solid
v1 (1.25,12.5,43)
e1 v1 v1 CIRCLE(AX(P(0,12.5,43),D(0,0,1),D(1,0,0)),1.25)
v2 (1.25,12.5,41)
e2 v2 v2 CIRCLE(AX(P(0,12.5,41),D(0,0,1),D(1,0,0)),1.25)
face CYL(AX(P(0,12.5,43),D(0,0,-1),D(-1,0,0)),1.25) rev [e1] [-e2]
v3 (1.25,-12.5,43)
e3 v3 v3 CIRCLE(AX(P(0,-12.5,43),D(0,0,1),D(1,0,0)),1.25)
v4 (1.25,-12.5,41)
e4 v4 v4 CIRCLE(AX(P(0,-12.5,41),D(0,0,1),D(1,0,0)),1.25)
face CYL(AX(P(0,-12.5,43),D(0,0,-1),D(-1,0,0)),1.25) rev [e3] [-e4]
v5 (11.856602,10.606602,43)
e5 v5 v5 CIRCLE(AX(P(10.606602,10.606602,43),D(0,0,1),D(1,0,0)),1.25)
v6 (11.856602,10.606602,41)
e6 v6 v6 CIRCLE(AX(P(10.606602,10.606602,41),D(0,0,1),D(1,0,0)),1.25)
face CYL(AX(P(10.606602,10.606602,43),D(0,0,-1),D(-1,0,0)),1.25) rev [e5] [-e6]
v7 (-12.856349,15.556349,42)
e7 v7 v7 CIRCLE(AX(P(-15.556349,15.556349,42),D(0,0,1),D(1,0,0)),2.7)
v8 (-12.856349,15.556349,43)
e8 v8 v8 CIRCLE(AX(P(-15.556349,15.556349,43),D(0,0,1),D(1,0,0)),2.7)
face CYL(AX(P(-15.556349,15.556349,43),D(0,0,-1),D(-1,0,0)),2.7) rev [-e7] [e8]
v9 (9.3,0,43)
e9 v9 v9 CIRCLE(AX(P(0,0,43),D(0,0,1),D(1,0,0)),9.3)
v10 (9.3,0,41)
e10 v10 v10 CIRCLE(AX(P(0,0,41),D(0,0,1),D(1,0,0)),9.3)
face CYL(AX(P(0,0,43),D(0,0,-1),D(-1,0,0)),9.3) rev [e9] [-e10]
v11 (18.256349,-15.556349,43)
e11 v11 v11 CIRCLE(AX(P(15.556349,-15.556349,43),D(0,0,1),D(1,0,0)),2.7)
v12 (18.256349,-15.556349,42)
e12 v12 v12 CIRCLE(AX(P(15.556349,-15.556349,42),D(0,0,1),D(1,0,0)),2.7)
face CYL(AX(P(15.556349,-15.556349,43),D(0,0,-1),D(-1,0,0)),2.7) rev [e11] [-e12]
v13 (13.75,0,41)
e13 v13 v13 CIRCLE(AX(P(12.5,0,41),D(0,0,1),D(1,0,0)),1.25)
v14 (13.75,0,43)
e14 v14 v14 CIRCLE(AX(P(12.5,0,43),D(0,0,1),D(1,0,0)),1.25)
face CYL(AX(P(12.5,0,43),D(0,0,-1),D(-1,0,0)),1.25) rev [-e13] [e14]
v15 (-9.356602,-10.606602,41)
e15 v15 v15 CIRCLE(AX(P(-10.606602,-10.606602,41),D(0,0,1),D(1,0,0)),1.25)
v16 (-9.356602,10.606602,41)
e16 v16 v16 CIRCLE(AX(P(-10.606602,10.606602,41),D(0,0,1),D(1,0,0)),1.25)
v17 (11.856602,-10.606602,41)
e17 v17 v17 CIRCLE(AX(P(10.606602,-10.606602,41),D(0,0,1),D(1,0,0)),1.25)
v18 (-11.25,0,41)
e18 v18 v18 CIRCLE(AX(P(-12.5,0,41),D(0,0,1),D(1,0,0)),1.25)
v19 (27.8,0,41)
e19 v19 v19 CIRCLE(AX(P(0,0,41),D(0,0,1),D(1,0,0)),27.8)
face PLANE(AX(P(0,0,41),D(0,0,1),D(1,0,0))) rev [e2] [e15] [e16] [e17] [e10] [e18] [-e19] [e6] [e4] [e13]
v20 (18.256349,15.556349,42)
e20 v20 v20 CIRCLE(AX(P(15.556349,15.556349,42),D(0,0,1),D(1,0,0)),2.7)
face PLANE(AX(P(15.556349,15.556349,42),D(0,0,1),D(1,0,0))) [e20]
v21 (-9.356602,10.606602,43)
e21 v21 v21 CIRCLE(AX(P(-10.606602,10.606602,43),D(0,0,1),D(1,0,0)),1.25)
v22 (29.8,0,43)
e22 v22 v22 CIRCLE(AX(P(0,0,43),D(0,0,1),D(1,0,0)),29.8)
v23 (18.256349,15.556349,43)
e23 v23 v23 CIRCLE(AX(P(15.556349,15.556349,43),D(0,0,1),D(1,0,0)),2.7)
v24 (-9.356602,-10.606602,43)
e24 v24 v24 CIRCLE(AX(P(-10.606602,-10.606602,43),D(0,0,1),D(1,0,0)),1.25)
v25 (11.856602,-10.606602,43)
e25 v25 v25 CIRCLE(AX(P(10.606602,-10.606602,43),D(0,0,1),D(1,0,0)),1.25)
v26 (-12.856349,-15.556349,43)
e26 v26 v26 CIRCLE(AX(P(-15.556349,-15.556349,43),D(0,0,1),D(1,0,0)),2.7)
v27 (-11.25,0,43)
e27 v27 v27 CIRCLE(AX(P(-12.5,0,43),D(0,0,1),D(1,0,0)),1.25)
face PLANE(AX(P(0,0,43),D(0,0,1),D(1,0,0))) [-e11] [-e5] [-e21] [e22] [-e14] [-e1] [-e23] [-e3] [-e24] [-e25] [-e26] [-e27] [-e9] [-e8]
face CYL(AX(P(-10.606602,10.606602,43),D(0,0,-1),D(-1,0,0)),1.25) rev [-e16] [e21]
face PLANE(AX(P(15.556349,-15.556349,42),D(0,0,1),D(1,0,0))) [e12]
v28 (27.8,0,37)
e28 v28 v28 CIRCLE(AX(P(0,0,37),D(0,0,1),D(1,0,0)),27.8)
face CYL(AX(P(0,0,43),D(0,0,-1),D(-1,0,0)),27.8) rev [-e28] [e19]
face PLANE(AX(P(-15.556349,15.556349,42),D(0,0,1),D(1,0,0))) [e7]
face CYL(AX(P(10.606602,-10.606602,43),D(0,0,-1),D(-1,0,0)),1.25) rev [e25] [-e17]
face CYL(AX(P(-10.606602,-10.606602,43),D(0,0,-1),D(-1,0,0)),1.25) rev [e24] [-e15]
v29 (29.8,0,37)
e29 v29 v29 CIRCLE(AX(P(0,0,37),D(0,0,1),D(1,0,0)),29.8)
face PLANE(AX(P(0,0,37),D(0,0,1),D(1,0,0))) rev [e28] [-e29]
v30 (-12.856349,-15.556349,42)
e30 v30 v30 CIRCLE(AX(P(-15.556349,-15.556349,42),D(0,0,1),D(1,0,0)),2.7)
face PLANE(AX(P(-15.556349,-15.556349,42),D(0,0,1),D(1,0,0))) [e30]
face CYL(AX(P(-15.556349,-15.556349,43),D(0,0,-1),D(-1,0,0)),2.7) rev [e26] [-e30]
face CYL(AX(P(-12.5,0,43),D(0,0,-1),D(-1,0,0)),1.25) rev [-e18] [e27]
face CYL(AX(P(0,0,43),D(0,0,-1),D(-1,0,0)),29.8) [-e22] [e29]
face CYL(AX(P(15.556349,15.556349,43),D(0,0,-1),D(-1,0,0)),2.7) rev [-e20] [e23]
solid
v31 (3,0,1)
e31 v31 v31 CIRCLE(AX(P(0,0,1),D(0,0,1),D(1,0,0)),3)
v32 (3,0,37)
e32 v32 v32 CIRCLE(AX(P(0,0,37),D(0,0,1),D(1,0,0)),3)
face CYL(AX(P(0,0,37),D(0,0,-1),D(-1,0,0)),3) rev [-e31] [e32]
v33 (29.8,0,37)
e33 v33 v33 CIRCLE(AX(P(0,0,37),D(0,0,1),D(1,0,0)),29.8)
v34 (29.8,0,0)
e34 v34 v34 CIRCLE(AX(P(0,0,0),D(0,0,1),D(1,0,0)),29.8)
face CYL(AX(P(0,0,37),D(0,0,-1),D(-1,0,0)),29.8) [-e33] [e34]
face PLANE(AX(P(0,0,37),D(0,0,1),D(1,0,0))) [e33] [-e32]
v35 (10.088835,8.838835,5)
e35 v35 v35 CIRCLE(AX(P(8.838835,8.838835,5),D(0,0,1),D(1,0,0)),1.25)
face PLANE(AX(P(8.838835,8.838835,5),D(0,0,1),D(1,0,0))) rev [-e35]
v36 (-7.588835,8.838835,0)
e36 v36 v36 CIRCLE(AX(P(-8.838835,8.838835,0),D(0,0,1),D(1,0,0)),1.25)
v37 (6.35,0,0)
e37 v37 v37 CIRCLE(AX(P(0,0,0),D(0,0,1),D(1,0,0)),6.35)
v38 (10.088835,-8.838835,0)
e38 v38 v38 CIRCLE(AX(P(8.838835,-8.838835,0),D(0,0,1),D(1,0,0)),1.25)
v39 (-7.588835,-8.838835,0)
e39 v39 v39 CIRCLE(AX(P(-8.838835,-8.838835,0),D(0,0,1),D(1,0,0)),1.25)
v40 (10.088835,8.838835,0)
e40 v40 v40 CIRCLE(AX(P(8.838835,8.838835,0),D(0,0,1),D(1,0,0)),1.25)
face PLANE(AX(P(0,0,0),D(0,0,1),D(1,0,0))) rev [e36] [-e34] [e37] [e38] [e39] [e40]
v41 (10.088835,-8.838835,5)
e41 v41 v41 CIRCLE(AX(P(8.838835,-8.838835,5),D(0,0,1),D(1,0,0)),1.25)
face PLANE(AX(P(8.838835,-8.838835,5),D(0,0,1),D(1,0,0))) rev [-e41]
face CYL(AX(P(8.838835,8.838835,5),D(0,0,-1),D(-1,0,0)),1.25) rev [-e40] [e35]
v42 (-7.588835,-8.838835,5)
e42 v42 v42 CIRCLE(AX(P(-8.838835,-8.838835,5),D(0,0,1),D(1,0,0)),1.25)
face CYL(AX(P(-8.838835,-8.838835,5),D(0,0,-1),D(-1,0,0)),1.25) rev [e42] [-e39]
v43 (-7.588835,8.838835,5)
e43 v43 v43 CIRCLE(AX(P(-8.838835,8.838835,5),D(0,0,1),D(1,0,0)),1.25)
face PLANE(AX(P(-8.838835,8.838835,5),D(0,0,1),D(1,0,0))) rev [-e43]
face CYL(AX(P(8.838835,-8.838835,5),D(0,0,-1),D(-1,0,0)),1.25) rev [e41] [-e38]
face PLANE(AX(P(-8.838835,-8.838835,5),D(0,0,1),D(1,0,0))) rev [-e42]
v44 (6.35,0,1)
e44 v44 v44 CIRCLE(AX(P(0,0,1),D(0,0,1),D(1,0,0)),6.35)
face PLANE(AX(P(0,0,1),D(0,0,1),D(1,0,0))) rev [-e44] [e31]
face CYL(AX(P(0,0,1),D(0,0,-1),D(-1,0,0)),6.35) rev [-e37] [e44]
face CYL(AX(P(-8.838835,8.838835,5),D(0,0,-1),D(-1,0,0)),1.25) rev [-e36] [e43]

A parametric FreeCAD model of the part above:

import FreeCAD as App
import Part
import Sketcher

V = App.Vector
Q = App.Units.Quantity

doc = App.newDocument("Part")
params = doc.addObject("Spreadsheet::Sheet", "Params")
for row, (alias, value) in enumerate([
    ("sketch1_diameter", "6 mm"),
    ("sketch1_diameter2", "59.6 mm"),
    ("pad1_length", "37 mm"),
    ("sketch2_diameter", "12.7 mm"),
    ("pocket1_length", "1 mm"),
    ("sketch3_diameter", "2.5 mm"),
    ("pocket2_length", "5 mm"),
    ("sketch4_diameter", "59.6 mm"),
    ("sketch4_diameter2", "55.6 mm"),
    ("pad2_length", "6 mm"),
    ("sketch5_diameter", "55.6 mm"),
    ("sketch5_diameter2", "18.6 mm"),
    ("pad3_length", "2 mm"),
    ("sketch6_diameter", "2.5 mm"),
    ("pocket3_length", "2 mm"),
    ("sketch7_diameter", "2.5 mm"),
    ("pocket4_length", "2 mm"),
    ("sketch8_diameter", "5.4 mm"),
    ("pocket5_length", "1 mm"),
], start=1):
    params.set(f"A{row}", alias)
    params.set(f"B{row}", "=" + value)
    params.setAlias(f"B{row}", alias)

body = doc.addObject("PartDesign::Body", "Body")

# Sketch on XY plane
sketch1 = body.newObject("Sketcher::SketchObject", "Sketch")
sketch1.AttachmentSupport = (doc.getObject("XY_Plane"), [""])
sketch1.MapMode = "FlatFace"
sketch1.addGeometry(Part.Circle(V(0, 0, 0), V(0, 0, 1), 29.8), False)
sketch1.addGeometry(Part.Circle(V(0, 0, 0), V(0, 0, 1), 3), False)
sketch1.addConstraint(Sketcher.Constraint("Coincident", 0, 3, -1, 1))
sketch1.addConstraint(Sketcher.Constraint("Coincident", 1, 3, -1, 1))
sketch1.addConstraint(Sketcher.Constraint("Diameter", 1, Q("6 mm")))
sketch1.addConstraint(Sketcher.Constraint("Diameter", 0, Q("59.6 mm")))
sketch1.setExpression("Constraints[2]", "Params.sketch1_diameter")
sketch1.setExpression("Constraints[3]", "Params.sketch1_diameter2")
pad1 = body.newObject("PartDesign::Pad", "Pad")
pad1.Profile = sketch1
pad1.setExpression("Length", "Params.pad1_length")

# Sketch on XY plane
sketch2 = body.newObject("Sketcher::SketchObject", "Sketch001")
sketch2.AttachmentSupport = (doc.getObject("XY_Plane"), [""])
sketch2.MapMode = "FlatFace"
sketch2.addGeometry(Part.Circle(V(0, 0, 0), V(0, 0, 1), 6), False)
sketch2.addConstraint(Sketcher.Constraint("Coincident", 0, 3, -1, 1))
sketch2.addConstraint(Sketcher.Constraint("Diameter", 0, Q("12.7 mm")))
sketch2.setExpression("Constraints[1]", "Params.sketch2_diameter")
pocket1 = body.newObject("PartDesign::Pocket", "Pocket")
pocket1.Profile = sketch2
pocket1.setExpression("Length", "Params.pocket1_length")
pocket1.Reversed = True

# Sketch on XY plane
sketch3 = body.newObject("Sketcher::SketchObject", "Sketch002")
sketch3.AttachmentSupport = (doc.getObject("XY_Plane"), [""])
sketch3.MapMode = "FlatFace"
sketch3.addGeometry(Part.Circle(V(8.8, 8.8, 0), V(0, 0, 1), 1.2), False)
sketch3.addGeometry(Part.Circle(V(-8.8, 8.8, 0), V(0, 0, 1), 1.2), False)
sketch3.addGeometry(Part.Circle(V(-8.8, -8.8, 0), V(0, 0, 1), 1.2), False)
sketch3.addGeometry(Part.Circle(V(8.8, -8.8, 0), V(0, 0, 1), 1.2), False)
sketch3.addConstraint(Sketcher.Constraint("Equal", 0, 1))
sketch3.addConstraint(Sketcher.Constraint("Equal", 1, 2))
sketch3.addConstraint(Sketcher.Constraint("Equal", 2, 3))
sketch3.addConstraint(Sketcher.Constraint("Symmetric", 0, 3, 2, 3, -1, 1))
sketch3.addConstraint(Sketcher.Constraint("Symmetric", 1, 3, 3, 3, -1, 1))
sketch3.addConstraint(Sketcher.Constraint("Symmetric", 0, 3, 1, 3, -2))
sketch3.addConstraint(Sketcher.Constraint("Diameter", 0, Q("2.5 mm")))
sketch3.addConstraint(Sketcher.Constraint("DistanceX", 1, 3, 0, 3, Q("17.67767 mm")))
sketch3.addConstraint(Sketcher.Constraint("DistanceY", 2, 3, 1, 3, Q("17.67767 mm")))
sketch3.setExpression("Constraints[6]", "Params.sketch3_diameter")
pocket2 = body.newObject("PartDesign::Pocket", "Pocket001")
pocket2.Profile = sketch3
pocket2.setExpression("Length", "Params.pocket2_length")
pocket2.Reversed = True
body2 = doc.addObject("PartDesign::Body", "Body001")

# Sketch on XY plane
sketch4 = body2.newObject("Sketcher::SketchObject", "Sketch003")
sketch4.AttachmentSupport = (doc.getObject("XY_Plane001"), [""])
sketch4.MapMode = "FlatFace"
sketch4.AttachmentOffset = App.Placement(V(0, 0, 37), App.Rotation())
sketch4.addGeometry(Part.Circle(V(0, 0, 0), V(0, 0, 1), 30), False)
sketch4.addGeometry(Part.Circle(V(0, 0, 0), V(0, 0, 1), 28), False)
sketch4.addConstraint(Sketcher.Constraint("Coincident", 0, 3, -1, 1))
sketch4.addConstraint(Sketcher.Constraint("Coincident", 1, 3, -1, 1))
sketch4.addConstraint(Sketcher.Constraint("Diameter", 0, Q("59.6 mm")))
sketch4.addConstraint(Sketcher.Constraint("Diameter", 1, Q("55.6 mm")))
sketch4.setExpression("Constraints[2]", "Params.sketch4_diameter")
sketch4.setExpression("Constraints[3]", "Params.sketch4_diameter2")
pad2 = body2.newObject("PartDesign::Pad", "Pad001")
pad2.Profile = sketch4
pad2.setExpression("Length", "Params.pad2_length")

# Sketch on XY plane
sketch5 = body2.newObject("Sketcher::SketchObject", "Sketch004")
sketch5.AttachmentSupport = (doc.getObject("XY_Plane001"), [""])
sketch5.MapMode = "FlatFace"
sketch5.AttachmentOffset = App.Placement(V(0, 0, 41), App.Rotation())
sketch5.addGeometry(Part.Circle(V(0, 0, 0), V(0, 0, 1), 28), False)
sketch5.addGeometry(Part.Circle(V(0, 0, 0), V(0, 0, 1), 9), False)
sketch5.addConstraint(Sketcher.Constraint("Coincident", 0, 3, -1, 1))
sketch5.addConstraint(Sketcher.Constraint("Coincident", 1, 3, -1, 1))
sketch5.addConstraint(Sketcher.Constraint("Diameter", 0, Q("55.6 mm")))
sketch5.addConstraint(Sketcher.Constraint("Diameter", 1, Q("18.6 mm")))
sketch5.setExpression("Constraints[2]", "Params.sketch5_diameter")
sketch5.setExpression("Constraints[3]", "Params.sketch5_diameter2")
pad3 = body2.newObject("PartDesign::Pad", "Pad002")
pad3.Profile = sketch5
pad3.setExpression("Length", "Params.pad3_length")

# Sketch on XY plane
sketch6 = body2.newObject("Sketcher::SketchObject", "Sketch005")
sketch6.AttachmentSupport = (doc.getObject("XY_Plane001"), [""])
sketch6.MapMode = "FlatFace"
sketch6.AttachmentOffset = App.Placement(V(0, 0, 41), App.Rotation())
sketch6.addGeometry(Part.Circle(V(12.5, 0, 0), V(0, 0, 1), 1.2), False)
sketch6.addGeometry(Part.Circle(V(0, 12.5, 0), V(0, 0, 1), 1.2), False)
sketch6.addGeometry(Part.Circle(V(-12.5, 0, 0), V(0, 0, 1), 1.2), False)
sketch6.addGeometry(Part.Circle(V(0, -12.5, 0), V(0, 0, 1), 1.2), False)
sketch6.addConstraint(Sketcher.Constraint("Equal", 0, 1))
sketch6.addConstraint(Sketcher.Constraint("Equal", 1, 2))
sketch6.addConstraint(Sketcher.Constraint("Equal", 2, 3))
sketch6.addConstraint(Sketcher.Constraint("Symmetric", 0, 3, 2, 3, -1, 1))
sketch6.addConstraint(Sketcher.Constraint("Symmetric", 1, 3, 3, 3, -1, 1))
sketch6.addConstraint(Sketcher.Constraint("PointOnObject", 0, 3, -1))
sketch6.addConstraint(Sketcher.Constraint("PointOnObject", 1, 3, -2))
sketch6.addConstraint(Sketcher.Constraint("Diameter", 0, Q("2.5 mm")))
sketch6.addConstraint(Sketcher.Constraint("DistanceX", 2, 3, 0, 3, Q("25 mm")))
sketch6.addConstraint(Sketcher.Constraint("DistanceY", 3, 3, 1, 3, Q("25 mm")))
sketch6.setExpression("Constraints[7]", "Params.sketch6_diameter")
pocket3 = body2.newObject("PartDesign::Pocket", "Pocket002")
pocket3.Profile = sketch6
pocket3.setExpression("Length", "Params.pocket3_length")
pocket3.Reversed = True

# Sketch on XY plane
sketch7 = body2.newObject("Sketcher::SketchObject", "Sketch006")
sketch7.AttachmentSupport = (doc.getObject("XY_Plane001"), [""])
sketch7.MapMode = "FlatFace"
sketch7.AttachmentOffset = App.Placement(V(0, 0, 41), App.Rotation())
sketch7.addGeometry(Part.Circle(V(10.6, 10.6, 0), V(0, 0, 1), 1.2), False)
sketch7.addGeometry(Part.Circle(V(-10.6, 10.6, 0), V(0, 0, 1), 1.2), False)
sketch7.addGeometry(Part.Circle(V(-10.6, -10.6, 0), V(0, 0, 1), 1.2), False)
sketch7.addGeometry(Part.Circle(V(10.6, -10.6, 0), V(0, 0, 1), 1.2), False)
sketch7.addConstraint(Sketcher.Constraint("Equal", 0, 1))
sketch7.addConstraint(Sketcher.Constraint("Equal", 1, 2))
sketch7.addConstraint(Sketcher.Constraint("Equal", 2, 3))
sketch7.addConstraint(Sketcher.Constraint("Symmetric", 0, 3, 2, 3, -1, 1))
sketch7.addConstraint(Sketcher.Constraint("Symmetric", 1, 3, 3, 3, -1, 1))
sketch7.addConstraint(Sketcher.Constraint("Symmetric", 0, 3, 1, 3, -2))
sketch7.addConstraint(Sketcher.Constraint("Diameter", 0, Q("2.5 mm")))
sketch7.addConstraint(Sketcher.Constraint("DistanceX", -1, 1, 0, 3, Q("10.606602 mm")))
sketch7.addConstraint(Sketcher.Constraint("DistanceY", -1, 1, 0, 3, Q("10.606602 mm")))
sketch7.setExpression("Constraints[6]", "Params.sketch7_diameter")
pocket4 = body2.newObject("PartDesign::Pocket", "Pocket003")
pocket4.Profile = sketch7
pocket4.setExpression("Length", "Params.pocket4_length")
pocket4.Reversed = True

# Sketch on XY plane
sketch8 = body2.newObject("Sketcher::SketchObject", "Sketch007")
sketch8.AttachmentSupport = (doc.getObject("XY_Plane001"), [""])
sketch8.MapMode = "FlatFace"
sketch8.AttachmentOffset = App.Placement(V(0, 0, 42), App.Rotation())
sketch8.addGeometry(Part.Circle(V(15.6, 15.6, 0), V(0, 0, 1), 2.7), False)
sketch8.addGeometry(Part.Circle(V(-15.6, 15.6, 0), V(0, 0, 1), 2.7), False)
sketch8.addGeometry(Part.Circle(V(-15.6, -15.6, 0), V(0, 0, 1), 2.7), False)
sketch8.addGeometry(Part.Circle(V(15.6, -15.6, 0), V(0, 0, 1), 2.7), False)
sketch8.addConstraint(Sketcher.Constraint("Equal", 0, 1))
sketch8.addConstraint(Sketcher.Constraint("Equal", 1, 2))
sketch8.addConstraint(Sketcher.Constraint("Equal", 2, 3))
sketch8.addConstraint(Sketcher.Constraint("Symmetric", 0, 3, 2, 3, -1, 1))
sketch8.addConstraint(Sketcher.Constraint("Symmetric", 1, 3, 3, 3, -1, 1))
sketch8.addConstraint(Sketcher.Constraint("Symmetric", 0, 3, 1, 3, -2))
sketch8.addConstraint(Sketcher.Constraint("Diameter", 0, Q("5.4 mm")))
sketch8.addConstraint(Sketcher.Constraint("DistanceX", 1, 3, 0, 3, Q("31.112698 mm")))
sketch8.addConstraint(Sketcher.Constraint("DistanceY", 2, 3, 1, 3, Q("31.112698 mm")))
sketch8.setExpression("Constraints[6]", "Params.sketch8_diameter")
pocket5 = body2.newObject("PartDesign::Pocket", "Pocket004")
pocket5.Profile = sketch8
pocket5.setExpression("Length", "Params.pocket5_length")
pocket5.Reversed = True

doc.recompute()
